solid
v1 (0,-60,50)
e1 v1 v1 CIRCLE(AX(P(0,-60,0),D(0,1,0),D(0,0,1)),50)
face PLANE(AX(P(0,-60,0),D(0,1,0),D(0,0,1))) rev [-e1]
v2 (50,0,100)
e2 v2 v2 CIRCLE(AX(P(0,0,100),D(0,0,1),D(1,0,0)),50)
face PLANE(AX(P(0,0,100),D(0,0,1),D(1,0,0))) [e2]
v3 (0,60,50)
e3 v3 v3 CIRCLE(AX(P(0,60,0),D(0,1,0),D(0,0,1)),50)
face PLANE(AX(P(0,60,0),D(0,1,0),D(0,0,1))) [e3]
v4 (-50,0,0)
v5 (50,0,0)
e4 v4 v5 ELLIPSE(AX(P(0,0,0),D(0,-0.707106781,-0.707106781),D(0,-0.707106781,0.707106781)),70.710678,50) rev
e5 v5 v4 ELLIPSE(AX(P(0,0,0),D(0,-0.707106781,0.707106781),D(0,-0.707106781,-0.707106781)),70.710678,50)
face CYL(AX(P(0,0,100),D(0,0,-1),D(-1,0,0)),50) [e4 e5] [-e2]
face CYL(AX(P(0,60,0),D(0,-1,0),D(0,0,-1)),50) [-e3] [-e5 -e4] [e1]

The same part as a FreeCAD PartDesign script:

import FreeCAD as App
import Part
import Sketcher

V = App.Vector

doc = App.newDocument("Part")
params = doc.addObject("Spreadsheet::Sheet", "Params")
for row, (alias, value) in enumerate([
    ("sketch1_diameter", "100 mm"),
    ("pad1_length", "120 mm"),
    ("sketch2_diameter", "100 mm"),
    ("pad2_length", "100 mm"),
], start=1):
    params.set(f"A{row}", alias)
    params.set(f"B{row}", "=" + value)
    params.setAlias(f"B{row}", alias)

body = doc.addObject("PartDesign::Body", "Body")

sketch1 = doc.addObject("Sketcher::SketchObject", "Sketch")
body.addObject(sketch1)
sketch1.AttachmentSupport = (doc.XZ_Plane, [""])
sketch1.MapMode = "FlatFace"
sketch1.addGeometry(Part.Circle(V(0, 0, 0), V(0, 0, 1), 50), False)
sketch1.addConstraint(Sketcher.Constraint("Coincident", 0, 3, -1, 1))
sketch1.addConstraint(Sketcher.Constraint("Diameter", 0, 100.0))
sketch1.setExpression("Constraints[1]", "Params.sketch1_diameter")
pad1 = doc.addObject("PartDesign::Pad", "Pad")
body.addObject(pad1)
pad1.Profile = sketch1
pad1.setExpression("Length", "Params.pad1_length")
pad1.Midplane = True

sketch2 = doc.addObject("Sketcher::SketchObject", "Sketch001")
body.addObject(sketch2)
sketch2.AttachmentSupport = (doc.XY_Plane, [""])
sketch2.MapMode = "FlatFace"
sketch2.addGeometry(Part.Circle(V(0, 0, 0), V(0, 0, 1), 50), False)
sketch2.addConstraint(Sketcher.Constraint("Coincident", 0, 3, -1, 1))
sketch2.addConstraint(Sketcher.Constraint("Diameter", 0, 100.0))
sketch2.setExpression("Constraints[1]", "Params.sketch2_diameter")
pad2 = doc.addObject("PartDesign::Pad", "Pad001")
body.addObject(pad2)
pad2.Profile = sketch2
pad2.setExpression("Length", "Params.pad2_length")

doc.recompute()
